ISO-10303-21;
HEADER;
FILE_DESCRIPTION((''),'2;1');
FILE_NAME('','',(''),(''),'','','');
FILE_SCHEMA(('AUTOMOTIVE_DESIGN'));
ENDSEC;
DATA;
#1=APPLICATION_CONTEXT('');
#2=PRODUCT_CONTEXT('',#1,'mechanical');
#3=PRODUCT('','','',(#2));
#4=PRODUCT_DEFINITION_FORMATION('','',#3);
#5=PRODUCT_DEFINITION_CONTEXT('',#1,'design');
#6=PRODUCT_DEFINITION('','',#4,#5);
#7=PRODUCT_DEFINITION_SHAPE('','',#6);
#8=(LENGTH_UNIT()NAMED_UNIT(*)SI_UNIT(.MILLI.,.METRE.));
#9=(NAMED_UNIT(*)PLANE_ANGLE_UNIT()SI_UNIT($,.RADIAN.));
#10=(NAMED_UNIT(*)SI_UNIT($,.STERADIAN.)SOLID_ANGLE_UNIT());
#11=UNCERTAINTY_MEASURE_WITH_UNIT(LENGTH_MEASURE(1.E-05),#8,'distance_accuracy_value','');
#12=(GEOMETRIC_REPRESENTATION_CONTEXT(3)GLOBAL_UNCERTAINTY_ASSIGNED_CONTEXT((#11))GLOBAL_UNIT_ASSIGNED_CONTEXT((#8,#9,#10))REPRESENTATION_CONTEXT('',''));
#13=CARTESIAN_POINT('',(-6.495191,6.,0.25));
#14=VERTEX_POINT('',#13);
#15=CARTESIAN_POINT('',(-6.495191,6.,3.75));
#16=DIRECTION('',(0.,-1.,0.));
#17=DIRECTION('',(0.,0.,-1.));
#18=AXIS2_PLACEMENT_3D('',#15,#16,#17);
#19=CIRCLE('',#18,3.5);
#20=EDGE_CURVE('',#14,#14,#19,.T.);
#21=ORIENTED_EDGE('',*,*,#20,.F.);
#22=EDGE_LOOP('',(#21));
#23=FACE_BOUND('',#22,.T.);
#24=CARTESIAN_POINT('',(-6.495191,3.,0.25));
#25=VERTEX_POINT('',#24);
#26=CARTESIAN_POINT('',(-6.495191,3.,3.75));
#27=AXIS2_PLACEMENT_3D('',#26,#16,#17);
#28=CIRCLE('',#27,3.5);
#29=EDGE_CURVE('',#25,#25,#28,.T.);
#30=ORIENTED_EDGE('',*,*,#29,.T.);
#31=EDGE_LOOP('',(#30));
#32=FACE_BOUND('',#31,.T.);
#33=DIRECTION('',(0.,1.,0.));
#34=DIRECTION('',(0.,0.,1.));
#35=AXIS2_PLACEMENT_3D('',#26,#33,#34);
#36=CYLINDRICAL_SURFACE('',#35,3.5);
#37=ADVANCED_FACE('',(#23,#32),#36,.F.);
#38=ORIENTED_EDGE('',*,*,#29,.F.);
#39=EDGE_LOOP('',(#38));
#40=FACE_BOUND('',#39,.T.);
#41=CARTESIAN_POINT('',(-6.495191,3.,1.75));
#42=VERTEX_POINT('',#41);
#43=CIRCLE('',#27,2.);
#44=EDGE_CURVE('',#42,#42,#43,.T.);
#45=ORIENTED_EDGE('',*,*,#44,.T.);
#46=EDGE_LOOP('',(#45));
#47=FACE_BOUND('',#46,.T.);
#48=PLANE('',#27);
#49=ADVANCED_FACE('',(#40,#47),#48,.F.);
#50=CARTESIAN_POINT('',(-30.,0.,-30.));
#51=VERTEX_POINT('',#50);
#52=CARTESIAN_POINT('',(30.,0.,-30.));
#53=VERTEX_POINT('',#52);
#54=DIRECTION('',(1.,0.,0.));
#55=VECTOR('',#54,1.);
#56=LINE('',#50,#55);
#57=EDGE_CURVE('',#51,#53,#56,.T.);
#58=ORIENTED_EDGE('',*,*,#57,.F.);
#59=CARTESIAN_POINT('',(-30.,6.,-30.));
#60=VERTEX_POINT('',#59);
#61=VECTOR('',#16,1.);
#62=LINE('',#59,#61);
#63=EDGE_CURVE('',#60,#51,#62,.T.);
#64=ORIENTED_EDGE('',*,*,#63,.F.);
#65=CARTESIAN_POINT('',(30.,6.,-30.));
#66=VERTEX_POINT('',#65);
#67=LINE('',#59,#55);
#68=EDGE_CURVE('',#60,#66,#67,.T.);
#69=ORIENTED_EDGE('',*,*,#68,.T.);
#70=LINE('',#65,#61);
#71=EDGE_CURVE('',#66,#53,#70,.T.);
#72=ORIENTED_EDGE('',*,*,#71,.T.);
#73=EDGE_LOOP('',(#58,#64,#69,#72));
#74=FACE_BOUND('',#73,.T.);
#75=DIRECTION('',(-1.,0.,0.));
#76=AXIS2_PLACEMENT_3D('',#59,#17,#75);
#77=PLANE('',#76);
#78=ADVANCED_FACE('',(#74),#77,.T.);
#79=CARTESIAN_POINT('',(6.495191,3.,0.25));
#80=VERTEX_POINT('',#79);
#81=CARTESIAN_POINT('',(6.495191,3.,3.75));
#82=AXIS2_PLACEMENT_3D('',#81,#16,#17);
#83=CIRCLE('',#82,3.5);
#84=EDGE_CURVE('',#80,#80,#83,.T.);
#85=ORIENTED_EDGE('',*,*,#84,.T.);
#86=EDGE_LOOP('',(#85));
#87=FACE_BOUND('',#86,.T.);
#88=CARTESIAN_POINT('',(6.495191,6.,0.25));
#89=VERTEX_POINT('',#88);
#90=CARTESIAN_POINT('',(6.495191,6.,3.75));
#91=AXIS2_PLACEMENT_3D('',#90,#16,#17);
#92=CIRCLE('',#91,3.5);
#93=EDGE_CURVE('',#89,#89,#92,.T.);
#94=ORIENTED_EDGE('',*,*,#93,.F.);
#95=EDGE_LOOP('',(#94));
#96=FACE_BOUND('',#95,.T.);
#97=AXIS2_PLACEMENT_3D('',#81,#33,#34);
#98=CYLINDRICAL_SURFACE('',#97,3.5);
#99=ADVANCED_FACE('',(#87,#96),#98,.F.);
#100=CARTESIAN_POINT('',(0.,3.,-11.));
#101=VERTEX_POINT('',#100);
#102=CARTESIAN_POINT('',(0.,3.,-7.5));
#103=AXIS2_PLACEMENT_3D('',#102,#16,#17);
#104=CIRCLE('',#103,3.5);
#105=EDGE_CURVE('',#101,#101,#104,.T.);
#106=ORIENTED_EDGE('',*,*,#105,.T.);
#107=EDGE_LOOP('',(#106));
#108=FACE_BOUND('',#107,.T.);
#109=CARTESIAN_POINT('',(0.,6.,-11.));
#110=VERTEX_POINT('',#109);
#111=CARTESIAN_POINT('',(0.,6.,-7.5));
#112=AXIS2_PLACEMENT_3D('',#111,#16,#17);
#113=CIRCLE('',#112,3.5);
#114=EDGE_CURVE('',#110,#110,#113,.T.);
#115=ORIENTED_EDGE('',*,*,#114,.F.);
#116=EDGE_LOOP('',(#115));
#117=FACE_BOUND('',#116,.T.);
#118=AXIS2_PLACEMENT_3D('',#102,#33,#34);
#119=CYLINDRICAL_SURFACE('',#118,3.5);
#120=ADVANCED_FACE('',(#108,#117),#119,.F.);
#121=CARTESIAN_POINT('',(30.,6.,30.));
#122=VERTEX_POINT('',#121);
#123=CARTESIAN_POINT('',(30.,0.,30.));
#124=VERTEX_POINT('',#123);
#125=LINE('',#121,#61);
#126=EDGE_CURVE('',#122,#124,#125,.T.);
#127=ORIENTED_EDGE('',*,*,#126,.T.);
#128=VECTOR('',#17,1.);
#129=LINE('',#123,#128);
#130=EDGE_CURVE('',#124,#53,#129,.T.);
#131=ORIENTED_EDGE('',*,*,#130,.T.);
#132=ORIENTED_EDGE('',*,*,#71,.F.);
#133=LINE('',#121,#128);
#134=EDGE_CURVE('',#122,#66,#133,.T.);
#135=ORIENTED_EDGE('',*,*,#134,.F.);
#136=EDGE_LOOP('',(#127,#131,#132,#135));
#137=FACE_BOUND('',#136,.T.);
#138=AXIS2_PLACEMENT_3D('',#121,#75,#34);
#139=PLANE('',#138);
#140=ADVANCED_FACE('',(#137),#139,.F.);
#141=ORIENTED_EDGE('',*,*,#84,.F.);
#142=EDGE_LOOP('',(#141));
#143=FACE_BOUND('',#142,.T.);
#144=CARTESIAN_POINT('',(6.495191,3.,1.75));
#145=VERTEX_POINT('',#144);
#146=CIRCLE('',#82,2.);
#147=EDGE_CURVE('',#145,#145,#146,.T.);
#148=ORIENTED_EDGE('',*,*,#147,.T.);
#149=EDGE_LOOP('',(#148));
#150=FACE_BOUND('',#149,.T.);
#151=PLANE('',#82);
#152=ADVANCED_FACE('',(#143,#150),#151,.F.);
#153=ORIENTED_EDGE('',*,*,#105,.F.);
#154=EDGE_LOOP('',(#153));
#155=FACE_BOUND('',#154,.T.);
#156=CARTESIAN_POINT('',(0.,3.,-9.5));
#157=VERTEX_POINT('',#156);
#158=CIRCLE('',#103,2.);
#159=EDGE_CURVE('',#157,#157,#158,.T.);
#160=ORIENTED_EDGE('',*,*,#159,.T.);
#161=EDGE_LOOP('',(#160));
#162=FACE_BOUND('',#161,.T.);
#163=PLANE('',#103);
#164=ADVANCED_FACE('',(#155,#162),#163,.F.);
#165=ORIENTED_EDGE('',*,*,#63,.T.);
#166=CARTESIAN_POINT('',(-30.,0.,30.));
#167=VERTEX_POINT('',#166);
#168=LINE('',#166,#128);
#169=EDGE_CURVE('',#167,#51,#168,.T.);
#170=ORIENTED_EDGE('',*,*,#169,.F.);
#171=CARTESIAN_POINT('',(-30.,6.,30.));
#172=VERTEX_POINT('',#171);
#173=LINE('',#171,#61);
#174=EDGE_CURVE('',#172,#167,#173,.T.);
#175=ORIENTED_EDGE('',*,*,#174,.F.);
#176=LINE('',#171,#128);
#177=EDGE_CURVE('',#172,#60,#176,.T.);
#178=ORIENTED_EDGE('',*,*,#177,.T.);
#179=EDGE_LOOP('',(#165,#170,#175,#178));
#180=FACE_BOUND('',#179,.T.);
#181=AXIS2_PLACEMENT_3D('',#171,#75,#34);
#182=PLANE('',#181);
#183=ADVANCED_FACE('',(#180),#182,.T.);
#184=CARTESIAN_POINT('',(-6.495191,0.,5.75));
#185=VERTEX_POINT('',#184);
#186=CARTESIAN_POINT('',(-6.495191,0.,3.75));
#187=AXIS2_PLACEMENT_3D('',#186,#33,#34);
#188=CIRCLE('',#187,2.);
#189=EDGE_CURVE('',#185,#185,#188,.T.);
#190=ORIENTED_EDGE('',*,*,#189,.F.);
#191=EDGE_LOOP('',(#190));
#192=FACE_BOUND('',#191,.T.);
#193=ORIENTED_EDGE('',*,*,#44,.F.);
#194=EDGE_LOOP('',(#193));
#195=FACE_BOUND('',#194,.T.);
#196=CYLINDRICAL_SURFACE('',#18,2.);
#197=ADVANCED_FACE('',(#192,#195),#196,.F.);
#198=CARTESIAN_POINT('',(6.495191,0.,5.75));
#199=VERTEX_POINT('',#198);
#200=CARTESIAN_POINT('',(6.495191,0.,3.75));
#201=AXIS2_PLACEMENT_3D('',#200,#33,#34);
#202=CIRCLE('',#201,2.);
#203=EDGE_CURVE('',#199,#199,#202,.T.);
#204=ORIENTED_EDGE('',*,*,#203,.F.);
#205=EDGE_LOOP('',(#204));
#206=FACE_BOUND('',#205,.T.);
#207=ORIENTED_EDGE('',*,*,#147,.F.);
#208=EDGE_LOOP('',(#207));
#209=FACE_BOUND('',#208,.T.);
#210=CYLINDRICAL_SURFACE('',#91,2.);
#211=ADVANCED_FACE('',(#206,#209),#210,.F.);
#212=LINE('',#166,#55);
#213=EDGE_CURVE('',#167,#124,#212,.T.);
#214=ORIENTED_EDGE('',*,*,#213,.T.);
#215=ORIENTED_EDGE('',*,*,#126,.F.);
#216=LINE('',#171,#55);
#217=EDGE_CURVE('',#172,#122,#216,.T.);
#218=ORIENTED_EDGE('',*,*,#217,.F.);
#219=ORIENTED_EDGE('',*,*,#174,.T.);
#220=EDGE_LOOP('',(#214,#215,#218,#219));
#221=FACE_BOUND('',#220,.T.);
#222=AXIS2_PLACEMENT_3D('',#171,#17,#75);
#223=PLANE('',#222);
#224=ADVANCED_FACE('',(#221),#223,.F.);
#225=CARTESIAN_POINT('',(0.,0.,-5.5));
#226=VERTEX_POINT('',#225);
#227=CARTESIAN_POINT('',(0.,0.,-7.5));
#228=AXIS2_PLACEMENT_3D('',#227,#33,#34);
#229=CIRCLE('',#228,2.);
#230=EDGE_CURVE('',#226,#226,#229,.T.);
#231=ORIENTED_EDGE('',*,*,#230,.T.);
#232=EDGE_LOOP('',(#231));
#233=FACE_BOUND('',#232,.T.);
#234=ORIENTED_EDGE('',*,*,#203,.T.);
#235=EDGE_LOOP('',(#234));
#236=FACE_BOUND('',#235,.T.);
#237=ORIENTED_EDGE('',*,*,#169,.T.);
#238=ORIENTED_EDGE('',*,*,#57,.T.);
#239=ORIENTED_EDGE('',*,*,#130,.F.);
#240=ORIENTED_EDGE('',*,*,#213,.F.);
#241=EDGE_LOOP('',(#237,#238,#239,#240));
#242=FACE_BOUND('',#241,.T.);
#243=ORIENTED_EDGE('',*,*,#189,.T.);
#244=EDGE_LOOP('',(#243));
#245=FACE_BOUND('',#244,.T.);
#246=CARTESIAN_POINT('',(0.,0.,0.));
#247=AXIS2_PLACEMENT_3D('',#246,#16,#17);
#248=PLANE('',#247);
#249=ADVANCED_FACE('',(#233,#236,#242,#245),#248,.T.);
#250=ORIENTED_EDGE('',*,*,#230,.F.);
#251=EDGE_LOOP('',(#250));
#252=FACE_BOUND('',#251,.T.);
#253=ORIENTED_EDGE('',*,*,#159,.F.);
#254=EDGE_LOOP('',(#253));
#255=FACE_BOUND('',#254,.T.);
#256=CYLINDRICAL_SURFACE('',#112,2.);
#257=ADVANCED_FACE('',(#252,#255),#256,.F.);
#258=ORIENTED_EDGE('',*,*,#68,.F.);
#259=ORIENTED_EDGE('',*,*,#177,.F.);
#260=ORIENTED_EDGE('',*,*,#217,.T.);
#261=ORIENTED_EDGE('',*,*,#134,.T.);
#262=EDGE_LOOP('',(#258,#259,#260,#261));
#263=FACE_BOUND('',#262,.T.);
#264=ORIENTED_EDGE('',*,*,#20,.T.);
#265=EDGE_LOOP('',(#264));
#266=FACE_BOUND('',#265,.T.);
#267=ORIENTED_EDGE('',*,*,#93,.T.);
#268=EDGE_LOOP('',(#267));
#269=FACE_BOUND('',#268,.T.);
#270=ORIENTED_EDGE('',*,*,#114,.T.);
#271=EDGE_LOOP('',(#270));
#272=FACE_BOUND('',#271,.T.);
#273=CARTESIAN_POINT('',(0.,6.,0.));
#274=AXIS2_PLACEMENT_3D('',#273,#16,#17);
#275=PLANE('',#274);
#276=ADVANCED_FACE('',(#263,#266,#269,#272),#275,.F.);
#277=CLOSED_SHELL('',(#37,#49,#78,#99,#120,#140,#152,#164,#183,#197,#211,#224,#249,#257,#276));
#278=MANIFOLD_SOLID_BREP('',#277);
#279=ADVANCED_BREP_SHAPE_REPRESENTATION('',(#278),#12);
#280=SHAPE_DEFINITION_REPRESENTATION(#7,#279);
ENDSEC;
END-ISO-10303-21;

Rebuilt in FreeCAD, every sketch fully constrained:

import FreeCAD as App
import Part
import Sketcher


def add_polygon(sketch, points):
    """Adds a closed chain of lines whose ends are joined by coincident constraints."""
    first, n = sketch.GeometryCount, len(points)
    for a, b in zip(points, points[1:] + points[:1]):
        sketch.addGeometry(Part.LineSegment(App.Vector(*a, 0), App.Vector(*b, 0)), False)
    for i in range(n):
        sketch.addConstraint(Sketcher.Constraint("Coincident", first + i, 2, first + (i + 1) % n, 1))

doc = App.newDocument("Part")
body = doc.addObject("PartDesign::Body", "Body")

# Sketch on XZ plane
sketch1 = body.newObject("Sketcher::SketchObject", "Sketch")
sketch1.AttachmentSupport = (doc.getObject("XZ_Plane"), [""])
sketch1.MapMode = "FlatFace"
add_polygon(sketch1, [(-30, -30), (-30, 30), (30, 30), (30, -30)])  # lines 0-3
sketch1.addConstraint([
    Sketcher.Constraint("Vertical", 0),
    Sketcher.Constraint("Horizontal", 1),
    Sketcher.Constraint("Vertical", 2),
    Sketcher.Constraint("Horizontal", 3),
    Sketcher.Constraint("Symmetric", 0, 2, 2, 2, -1, 1),
    Sketcher.Constraint("Equal", 3, 0),
    Sketcher.Constraint("DistanceX", 1, 1, 1, 2, 60.0),
])
pad1 = body.newObject("PartDesign::Pad", "Pad")
pad1.Profile = sketch1
pad1.Length = 6
pad1.Reversed = True

# Sketch on XZ plane
sketch2 = body.newObject("Sketcher::SketchObject", "Sketch001")
sketch2.AttachmentSupport = (doc.getObject("XZ_Plane"), [""])
sketch2.MapMode = "FlatFace"
sketch2.addGeometry([
    Part.Circle(App.Vector(0, -7.5, 0), App.Vector(0, 0, 1), 2),
    Part.Circle(App.Vector(6.5, 3.8, 0), App.Vector(0, 0, 1), 2),
    Part.Circle(App.Vector(-6.5, 3.8, 0), App.Vector(0, 0, 1), 2),
], False)
sketch2.addConstraint([
    Sketcher.Constraint("Equal", 0, 1),
    Sketcher.Constraint("Equal", 1, 2),
    Sketcher.Constraint("Symmetric", 1, 3, 2, 3, -2),
    Sketcher.Constraint("PointOnObject", 0, 3, -2),
    Sketcher.Constraint("Diameter", 0, 4.0),
    Sketcher.Constraint("DistanceY", 0, 3, -1, 1, 7.5),
    Sketcher.Constraint("DistanceY", -1, 1, 1, 3, 3.75),
    Sketcher.Constraint("DistanceX", -1, 1, 1, 3, 6.495191),
])
pocket1 = body.newObject("PartDesign::Pocket", "Pocket")
pocket1.Profile = sketch2
pocket1.Type = "ThroughAll"

# Sketch on XZ plane
sketch3 = body.newObject("Sketcher::SketchObject", "Sketch002")
sketch3.AttachmentSupport = (doc.getObject("XZ_Plane"), [""])
sketch3.MapMode = "FlatFace"
sketch3.AttachmentOffset = App.Placement(App.Vector(0, 0, -6), App.Rotation())
sketch3.addGeometry([
    Part.Circle(App.Vector(0, -7.5, 0), App.Vector(0, 0, 1), 3.5),
    Part.Circle(App.Vector(6.5, 3.8, 0), App.Vector(0, 0, 1), 3.5),
    Part.Circle(App.Vector(-6.5, 3.8, 0), App.Vector(0, 0, 1), 3.5),
], False)
sketch3.addConstraint([
    Sketcher.Constraint("Equal", 0, 1),
    Sketcher.Constraint("Equal", 1, 2),
    Sketcher.Constraint("Symmetric", 1, 3, 2, 3, -2),
    Sketcher.Constraint("PointOnObject", 0, 3, -2),
    Sketcher.Constraint("Diameter", 0, 7.0),
    Sketcher.Constraint("DistanceY", 0, 3, -1, 1, 7.5),
    Sketcher.Constraint("DistanceY", -1, 1, 1, 3, 3.75),
    Sketcher.Constraint("DistanceX", -1, 1, 1, 3, 6.495191),
])
pocket2 = body.newObject("PartDesign::Pocket", "Pocket001")
pocket2.Profile = sketch3
pocket2.Length = 3
pocket2.Reversed = True

doc.recompute()
